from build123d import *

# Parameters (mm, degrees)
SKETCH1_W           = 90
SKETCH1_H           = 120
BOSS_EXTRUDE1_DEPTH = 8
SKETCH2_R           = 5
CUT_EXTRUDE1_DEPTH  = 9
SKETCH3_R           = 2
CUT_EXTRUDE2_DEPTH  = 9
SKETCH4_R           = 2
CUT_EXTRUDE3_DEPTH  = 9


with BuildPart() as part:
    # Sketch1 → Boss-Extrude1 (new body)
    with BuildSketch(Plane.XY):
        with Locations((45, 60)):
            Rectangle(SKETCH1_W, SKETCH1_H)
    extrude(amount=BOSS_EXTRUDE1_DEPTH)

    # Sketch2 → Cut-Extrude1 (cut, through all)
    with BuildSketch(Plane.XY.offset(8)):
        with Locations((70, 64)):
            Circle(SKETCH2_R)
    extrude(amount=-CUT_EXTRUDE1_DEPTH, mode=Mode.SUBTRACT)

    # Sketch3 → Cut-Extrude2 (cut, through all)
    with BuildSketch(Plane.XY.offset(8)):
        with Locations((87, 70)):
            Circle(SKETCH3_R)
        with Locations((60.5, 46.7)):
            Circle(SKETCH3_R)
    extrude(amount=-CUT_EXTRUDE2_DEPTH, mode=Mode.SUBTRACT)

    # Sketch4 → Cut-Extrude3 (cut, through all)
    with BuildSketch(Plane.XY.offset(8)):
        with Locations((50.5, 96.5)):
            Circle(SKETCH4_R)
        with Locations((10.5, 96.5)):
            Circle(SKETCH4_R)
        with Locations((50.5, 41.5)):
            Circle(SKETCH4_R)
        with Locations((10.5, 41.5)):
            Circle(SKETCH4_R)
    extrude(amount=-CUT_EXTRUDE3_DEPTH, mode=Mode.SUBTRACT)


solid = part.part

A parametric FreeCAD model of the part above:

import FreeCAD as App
import Part
import Sketcher

V = App.Vector
Q = App.Units.Quantity

doc = App.newDocument("Part")
body = doc.addObject("PartDesign::Body", "Body")

sketch1 = body.newObject("Sketcher::SketchObject", "Sketch")
sketch1.AttachmentSupport = (doc.getObject("XY_Plane"), [""])
sketch1.MapMode = "FlatFace"
sketch1.addGeometry([
    Part.LineSegment(V(0, 120, 0), V(0, 0, 0)),
    Part.LineSegment(V(0, 0, 0), V(90, 0, 0)),
    Part.LineSegment(V(90, 0, 0), V(90, 120, 0)),
    Part.LineSegment(V(90, 120, 0), V(0, 120, 0)),
], False)
sketch1.addConstraint([
    Sketcher.Constraint("Coincident", 0, 2, 1, 1),
    Sketcher.Constraint("Coincident", 1, 2, 2, 1),
    Sketcher.Constraint("Coincident", 2, 2, 3, 1),
    Sketcher.Constraint("Coincident", 3, 2, 0, 1),
    Sketcher.Constraint("Vertical", 0),
    Sketcher.Constraint("Horizontal", 1),
    Sketcher.Constraint("Vertical", 2),
    Sketcher.Constraint("Horizontal", 3),
    Sketcher.Constraint("Coincident", 0, 2, -1, 1),
    Sketcher.Constraint("DistanceX", 1, 1, 1, 2, Q("90 mm")),
    Sketcher.Constraint("DistanceY", 0, 2, 0, 1, Q("120 mm")),
])
pad1 = body.newObject("PartDesign::Pad", "Pad")
pad1.Profile = sketch1
pad1.Length = 8

sketch2 = body.newObject("Sketcher::SketchObject", "Sketch001")
sketch2.AttachmentSupport = (doc.getObject("XY_Plane"), [""])
sketch2.MapMode = "FlatFace"
sketch2.AttachmentOffset = App.Placement(V(0, 0, 8), App.Rotation())
sketch2.addGeometry(Part.Circle(V(70, 64, 0), V(0, 0, 1), 5), False)
sketch2.addConstraint([
    Sketcher.Constraint("Diameter", 0, Q("10 mm")),
    Sketcher.Constraint("DistanceX", -1, 1, 0, 3, Q("70 mm")),
    Sketcher.Constraint("DistanceY", -1, 1, 0, 3, Q("64 mm")),
])
pocket1 = body.newObject("PartDesign::Pocket", "Pocket")
pocket1.Profile = sketch2
pocket1.Type = "ThroughAll"

sketch3 = body.newObject("Sketcher::SketchObject", "Sketch002")
sketch3.AttachmentSupport = (doc.getObject("XY_Plane"), [""])
sketch3.MapMode = "FlatFace"
sketch3.AttachmentOffset = App.Placement(V(0, 0, 8), App.Rotation())
sketch3.addGeometry([
    Part.Circle(V(87, 70, 0), V(0, 0, 1), 2),
    Part.Circle(V(60.5, 46.7, 0), V(0, 0, 1), 2),
], False)
sketch3.addConstraint([
    Sketcher.Constraint("Equal", 0, 1),
    Sketcher.Constraint("Diameter", 0, Q("4 mm")),
    Sketcher.Constraint("DistanceX", -1, 1, 0, 3, Q("87 mm")),
    Sketcher.Constraint("DistanceY", -1, 1, 0, 3, Q("70 mm")),
    Sketcher.Constraint("DistanceX", -1, 1, 1, 3, Q("60.5 mm")),
    Sketcher.Constraint("DistanceY", -1, 1, 1, 3, Q("46.7 mm")),
])
pocket2 = body.newObject("PartDesign::Pocket", "Pocket001")
pocket2.Profile = sketch3
pocket2.Type = "ThroughAll"

sketch4 = body.newObject("Sketcher::SketchObject", "Sketch003")
sketch4.AttachmentSupport = (doc.getObject("XY_Plane"), [""])
sketch4.MapMode = "FlatFace"
sketch4.AttachmentOffset = App.Placement(V(0, 0, 8), App.Rotation())
sketch4.addGeometry([
    Part.Circle(V(50.5, 96.5, 0), V(0, 0, 1), 2),
    Part.Circle(V(10.5, 96.5, 0), V(0, 0, 1), 2),
    Part.Circle(V(50.5, 41.5, 0), V(0, 0, 1), 2),
    Part.Circle(V(10.5, 41.5, 0), V(0, 0, 1), 2),
], False)
sketch4.addConstraint([
    Sketcher.Constraint("Equal", 0, 1),
    Sketcher.Constraint("Equal", 1, 2),
    Sketcher.Constraint("Equal", 2, 3),
    Sketcher.Constraint("Horizontal", 0, 3, 1, 3),
    Sketcher.Constraint("Horizontal", 2, 3, 3, 3),
    Sketcher.Constraint("Vertical", 0, 3, 2, 3),
    Sketcher.Constraint("Vertical", 1, 3, 3, 3),
    Sketcher.Constraint("Diameter", 0, Q("4 mm")),
    Sketcher.Constraint("DistanceX", 1, 3, 0, 3, Q("40 mm")),
    Sketcher.Constraint("DistanceY", 2, 3, 0, 3, Q("55 mm")),
    Sketcher.Constraint("DistanceX", -1, 1, 0, 3, Q("50.5 mm")),
    Sketcher.Constraint("DistanceY", -1, 1, 0, 3, Q("96.5 mm")),
])
pocket3 = body.newObject("PartDesign::Pocket", "Pocket002")
pocket3.Profile = sketch4
pocket3.Type = "ThroughAll"

doc.recompute()
